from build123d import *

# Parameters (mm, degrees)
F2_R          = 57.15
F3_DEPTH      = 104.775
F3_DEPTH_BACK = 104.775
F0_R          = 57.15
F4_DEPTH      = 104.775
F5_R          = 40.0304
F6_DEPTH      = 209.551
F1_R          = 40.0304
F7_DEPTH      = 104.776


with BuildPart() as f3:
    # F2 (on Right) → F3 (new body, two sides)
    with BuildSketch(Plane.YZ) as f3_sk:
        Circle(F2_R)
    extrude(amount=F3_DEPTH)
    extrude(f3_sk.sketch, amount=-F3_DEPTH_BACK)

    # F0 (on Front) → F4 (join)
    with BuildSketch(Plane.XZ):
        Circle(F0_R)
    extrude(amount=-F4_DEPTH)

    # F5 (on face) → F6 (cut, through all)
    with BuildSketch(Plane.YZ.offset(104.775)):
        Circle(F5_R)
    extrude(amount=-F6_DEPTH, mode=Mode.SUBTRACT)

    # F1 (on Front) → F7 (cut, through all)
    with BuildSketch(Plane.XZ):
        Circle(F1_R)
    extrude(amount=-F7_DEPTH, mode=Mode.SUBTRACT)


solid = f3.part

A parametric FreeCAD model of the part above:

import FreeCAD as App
import Part
import Sketcher
from FreeCAD import Vector
Q = App.Units.Quantity

doc = App.newDocument("Part")
body = doc.addObject("PartDesign::Body", "Body")

sketch1 = doc.addObject("Sketcher::SketchObject", "Sketch")
body.addObject(sketch1)
sketch1.AttachmentSupport = (doc.YZ_Plane, [""])
sketch1.MapMode = "FlatFace"
sketch1.addGeometry(Part.Circle(Vector(0, 0, 0), Vector(0, 0, 1), 57), False)
sketch1.addConstraint([
    Sketcher.Constraint("Coincident", 0, 3, -1, 1),
    Sketcher.Constraint("Diameter", 0, Q("4.5 in")),
])
pad1 = doc.addObject("PartDesign::Pad", "Pad")
body.addObject(pad1)
pad1.Profile = sketch1
pad1.Type = "TwoLengths"
pad1.Length = Q("4.125 in")
pad1.Length2 = Q("4.125 in")

sketch2 = doc.addObject("Sketcher::SketchObject", "Sketch001")
body.addObject(sketch2)
sketch2.AttachmentSupport = (doc.XZ_Plane, [""])
sketch2.MapMode = "FlatFace"
sketch2.addGeometry(Part.Circle(Vector(0, 0, 0), Vector(0, 0, 1), 57), False)
sketch2.addConstraint([
    Sketcher.Constraint("Coincident", 0, 3, -1, 1),
    Sketcher.Constraint("Diameter", 0, Q("4.5 in")),
])
pad2 = doc.addObject("PartDesign::Pad", "Pad001")
body.addObject(pad2)
pad2.Profile = sketch2
pad2.Length = Q("4.125 in")
pad2.Reversed = True

sketch3 = doc.addObject("Sketcher::SketchObject", "Sketch002")
body.addObject(sketch3)
sketch3.AttachmentSupport = (doc.YZ_Plane, [""])
sketch3.MapMode = "FlatFace"
sketch3.AttachmentOffset = App.Placement(Vector(0, 0, 4.125 * 25.4), App.Rotation())
sketch3.addGeometry(Part.Circle(Vector(0, 0, 0), Vector(0, 0, 1), 40), False)
sketch3.addConstraint([
    Sketcher.Constraint("Coincident", 0, 3, -1, 1),
    Sketcher.Constraint("Diameter", 0, Q("3.152 in")),
])
pocket1 = doc.addObject("PartDesign::Pocket", "Pocket")
body.addObject(pocket1)
pocket1.Profile = sketch3
pocket1.Type = "ThroughAll"

sketch4 = doc.addObject("Sketcher::SketchObject", "Sketch003")
body.addObject(sketch4)
sketch4.AttachmentSupport = (doc.XZ_Plane, [""])
sketch4.MapMode = "FlatFace"
sketch4.addGeometry(Part.Circle(Vector(0, 0, 0), Vector(0, 0, 1), 40), False)
sketch4.addConstraint([
    Sketcher.Constraint("Coincident", 0, 3, -1, 1),
    Sketcher.Constraint("Diameter", 0, Q("3.152 in")),
])
pocket2 = doc.addObject("PartDesign::Pocket", "Pocket001")
body.addObject(pocket2)
pocket2.Profile = sketch4
pocket2.Type = "ThroughAll"

doc.recompute()
